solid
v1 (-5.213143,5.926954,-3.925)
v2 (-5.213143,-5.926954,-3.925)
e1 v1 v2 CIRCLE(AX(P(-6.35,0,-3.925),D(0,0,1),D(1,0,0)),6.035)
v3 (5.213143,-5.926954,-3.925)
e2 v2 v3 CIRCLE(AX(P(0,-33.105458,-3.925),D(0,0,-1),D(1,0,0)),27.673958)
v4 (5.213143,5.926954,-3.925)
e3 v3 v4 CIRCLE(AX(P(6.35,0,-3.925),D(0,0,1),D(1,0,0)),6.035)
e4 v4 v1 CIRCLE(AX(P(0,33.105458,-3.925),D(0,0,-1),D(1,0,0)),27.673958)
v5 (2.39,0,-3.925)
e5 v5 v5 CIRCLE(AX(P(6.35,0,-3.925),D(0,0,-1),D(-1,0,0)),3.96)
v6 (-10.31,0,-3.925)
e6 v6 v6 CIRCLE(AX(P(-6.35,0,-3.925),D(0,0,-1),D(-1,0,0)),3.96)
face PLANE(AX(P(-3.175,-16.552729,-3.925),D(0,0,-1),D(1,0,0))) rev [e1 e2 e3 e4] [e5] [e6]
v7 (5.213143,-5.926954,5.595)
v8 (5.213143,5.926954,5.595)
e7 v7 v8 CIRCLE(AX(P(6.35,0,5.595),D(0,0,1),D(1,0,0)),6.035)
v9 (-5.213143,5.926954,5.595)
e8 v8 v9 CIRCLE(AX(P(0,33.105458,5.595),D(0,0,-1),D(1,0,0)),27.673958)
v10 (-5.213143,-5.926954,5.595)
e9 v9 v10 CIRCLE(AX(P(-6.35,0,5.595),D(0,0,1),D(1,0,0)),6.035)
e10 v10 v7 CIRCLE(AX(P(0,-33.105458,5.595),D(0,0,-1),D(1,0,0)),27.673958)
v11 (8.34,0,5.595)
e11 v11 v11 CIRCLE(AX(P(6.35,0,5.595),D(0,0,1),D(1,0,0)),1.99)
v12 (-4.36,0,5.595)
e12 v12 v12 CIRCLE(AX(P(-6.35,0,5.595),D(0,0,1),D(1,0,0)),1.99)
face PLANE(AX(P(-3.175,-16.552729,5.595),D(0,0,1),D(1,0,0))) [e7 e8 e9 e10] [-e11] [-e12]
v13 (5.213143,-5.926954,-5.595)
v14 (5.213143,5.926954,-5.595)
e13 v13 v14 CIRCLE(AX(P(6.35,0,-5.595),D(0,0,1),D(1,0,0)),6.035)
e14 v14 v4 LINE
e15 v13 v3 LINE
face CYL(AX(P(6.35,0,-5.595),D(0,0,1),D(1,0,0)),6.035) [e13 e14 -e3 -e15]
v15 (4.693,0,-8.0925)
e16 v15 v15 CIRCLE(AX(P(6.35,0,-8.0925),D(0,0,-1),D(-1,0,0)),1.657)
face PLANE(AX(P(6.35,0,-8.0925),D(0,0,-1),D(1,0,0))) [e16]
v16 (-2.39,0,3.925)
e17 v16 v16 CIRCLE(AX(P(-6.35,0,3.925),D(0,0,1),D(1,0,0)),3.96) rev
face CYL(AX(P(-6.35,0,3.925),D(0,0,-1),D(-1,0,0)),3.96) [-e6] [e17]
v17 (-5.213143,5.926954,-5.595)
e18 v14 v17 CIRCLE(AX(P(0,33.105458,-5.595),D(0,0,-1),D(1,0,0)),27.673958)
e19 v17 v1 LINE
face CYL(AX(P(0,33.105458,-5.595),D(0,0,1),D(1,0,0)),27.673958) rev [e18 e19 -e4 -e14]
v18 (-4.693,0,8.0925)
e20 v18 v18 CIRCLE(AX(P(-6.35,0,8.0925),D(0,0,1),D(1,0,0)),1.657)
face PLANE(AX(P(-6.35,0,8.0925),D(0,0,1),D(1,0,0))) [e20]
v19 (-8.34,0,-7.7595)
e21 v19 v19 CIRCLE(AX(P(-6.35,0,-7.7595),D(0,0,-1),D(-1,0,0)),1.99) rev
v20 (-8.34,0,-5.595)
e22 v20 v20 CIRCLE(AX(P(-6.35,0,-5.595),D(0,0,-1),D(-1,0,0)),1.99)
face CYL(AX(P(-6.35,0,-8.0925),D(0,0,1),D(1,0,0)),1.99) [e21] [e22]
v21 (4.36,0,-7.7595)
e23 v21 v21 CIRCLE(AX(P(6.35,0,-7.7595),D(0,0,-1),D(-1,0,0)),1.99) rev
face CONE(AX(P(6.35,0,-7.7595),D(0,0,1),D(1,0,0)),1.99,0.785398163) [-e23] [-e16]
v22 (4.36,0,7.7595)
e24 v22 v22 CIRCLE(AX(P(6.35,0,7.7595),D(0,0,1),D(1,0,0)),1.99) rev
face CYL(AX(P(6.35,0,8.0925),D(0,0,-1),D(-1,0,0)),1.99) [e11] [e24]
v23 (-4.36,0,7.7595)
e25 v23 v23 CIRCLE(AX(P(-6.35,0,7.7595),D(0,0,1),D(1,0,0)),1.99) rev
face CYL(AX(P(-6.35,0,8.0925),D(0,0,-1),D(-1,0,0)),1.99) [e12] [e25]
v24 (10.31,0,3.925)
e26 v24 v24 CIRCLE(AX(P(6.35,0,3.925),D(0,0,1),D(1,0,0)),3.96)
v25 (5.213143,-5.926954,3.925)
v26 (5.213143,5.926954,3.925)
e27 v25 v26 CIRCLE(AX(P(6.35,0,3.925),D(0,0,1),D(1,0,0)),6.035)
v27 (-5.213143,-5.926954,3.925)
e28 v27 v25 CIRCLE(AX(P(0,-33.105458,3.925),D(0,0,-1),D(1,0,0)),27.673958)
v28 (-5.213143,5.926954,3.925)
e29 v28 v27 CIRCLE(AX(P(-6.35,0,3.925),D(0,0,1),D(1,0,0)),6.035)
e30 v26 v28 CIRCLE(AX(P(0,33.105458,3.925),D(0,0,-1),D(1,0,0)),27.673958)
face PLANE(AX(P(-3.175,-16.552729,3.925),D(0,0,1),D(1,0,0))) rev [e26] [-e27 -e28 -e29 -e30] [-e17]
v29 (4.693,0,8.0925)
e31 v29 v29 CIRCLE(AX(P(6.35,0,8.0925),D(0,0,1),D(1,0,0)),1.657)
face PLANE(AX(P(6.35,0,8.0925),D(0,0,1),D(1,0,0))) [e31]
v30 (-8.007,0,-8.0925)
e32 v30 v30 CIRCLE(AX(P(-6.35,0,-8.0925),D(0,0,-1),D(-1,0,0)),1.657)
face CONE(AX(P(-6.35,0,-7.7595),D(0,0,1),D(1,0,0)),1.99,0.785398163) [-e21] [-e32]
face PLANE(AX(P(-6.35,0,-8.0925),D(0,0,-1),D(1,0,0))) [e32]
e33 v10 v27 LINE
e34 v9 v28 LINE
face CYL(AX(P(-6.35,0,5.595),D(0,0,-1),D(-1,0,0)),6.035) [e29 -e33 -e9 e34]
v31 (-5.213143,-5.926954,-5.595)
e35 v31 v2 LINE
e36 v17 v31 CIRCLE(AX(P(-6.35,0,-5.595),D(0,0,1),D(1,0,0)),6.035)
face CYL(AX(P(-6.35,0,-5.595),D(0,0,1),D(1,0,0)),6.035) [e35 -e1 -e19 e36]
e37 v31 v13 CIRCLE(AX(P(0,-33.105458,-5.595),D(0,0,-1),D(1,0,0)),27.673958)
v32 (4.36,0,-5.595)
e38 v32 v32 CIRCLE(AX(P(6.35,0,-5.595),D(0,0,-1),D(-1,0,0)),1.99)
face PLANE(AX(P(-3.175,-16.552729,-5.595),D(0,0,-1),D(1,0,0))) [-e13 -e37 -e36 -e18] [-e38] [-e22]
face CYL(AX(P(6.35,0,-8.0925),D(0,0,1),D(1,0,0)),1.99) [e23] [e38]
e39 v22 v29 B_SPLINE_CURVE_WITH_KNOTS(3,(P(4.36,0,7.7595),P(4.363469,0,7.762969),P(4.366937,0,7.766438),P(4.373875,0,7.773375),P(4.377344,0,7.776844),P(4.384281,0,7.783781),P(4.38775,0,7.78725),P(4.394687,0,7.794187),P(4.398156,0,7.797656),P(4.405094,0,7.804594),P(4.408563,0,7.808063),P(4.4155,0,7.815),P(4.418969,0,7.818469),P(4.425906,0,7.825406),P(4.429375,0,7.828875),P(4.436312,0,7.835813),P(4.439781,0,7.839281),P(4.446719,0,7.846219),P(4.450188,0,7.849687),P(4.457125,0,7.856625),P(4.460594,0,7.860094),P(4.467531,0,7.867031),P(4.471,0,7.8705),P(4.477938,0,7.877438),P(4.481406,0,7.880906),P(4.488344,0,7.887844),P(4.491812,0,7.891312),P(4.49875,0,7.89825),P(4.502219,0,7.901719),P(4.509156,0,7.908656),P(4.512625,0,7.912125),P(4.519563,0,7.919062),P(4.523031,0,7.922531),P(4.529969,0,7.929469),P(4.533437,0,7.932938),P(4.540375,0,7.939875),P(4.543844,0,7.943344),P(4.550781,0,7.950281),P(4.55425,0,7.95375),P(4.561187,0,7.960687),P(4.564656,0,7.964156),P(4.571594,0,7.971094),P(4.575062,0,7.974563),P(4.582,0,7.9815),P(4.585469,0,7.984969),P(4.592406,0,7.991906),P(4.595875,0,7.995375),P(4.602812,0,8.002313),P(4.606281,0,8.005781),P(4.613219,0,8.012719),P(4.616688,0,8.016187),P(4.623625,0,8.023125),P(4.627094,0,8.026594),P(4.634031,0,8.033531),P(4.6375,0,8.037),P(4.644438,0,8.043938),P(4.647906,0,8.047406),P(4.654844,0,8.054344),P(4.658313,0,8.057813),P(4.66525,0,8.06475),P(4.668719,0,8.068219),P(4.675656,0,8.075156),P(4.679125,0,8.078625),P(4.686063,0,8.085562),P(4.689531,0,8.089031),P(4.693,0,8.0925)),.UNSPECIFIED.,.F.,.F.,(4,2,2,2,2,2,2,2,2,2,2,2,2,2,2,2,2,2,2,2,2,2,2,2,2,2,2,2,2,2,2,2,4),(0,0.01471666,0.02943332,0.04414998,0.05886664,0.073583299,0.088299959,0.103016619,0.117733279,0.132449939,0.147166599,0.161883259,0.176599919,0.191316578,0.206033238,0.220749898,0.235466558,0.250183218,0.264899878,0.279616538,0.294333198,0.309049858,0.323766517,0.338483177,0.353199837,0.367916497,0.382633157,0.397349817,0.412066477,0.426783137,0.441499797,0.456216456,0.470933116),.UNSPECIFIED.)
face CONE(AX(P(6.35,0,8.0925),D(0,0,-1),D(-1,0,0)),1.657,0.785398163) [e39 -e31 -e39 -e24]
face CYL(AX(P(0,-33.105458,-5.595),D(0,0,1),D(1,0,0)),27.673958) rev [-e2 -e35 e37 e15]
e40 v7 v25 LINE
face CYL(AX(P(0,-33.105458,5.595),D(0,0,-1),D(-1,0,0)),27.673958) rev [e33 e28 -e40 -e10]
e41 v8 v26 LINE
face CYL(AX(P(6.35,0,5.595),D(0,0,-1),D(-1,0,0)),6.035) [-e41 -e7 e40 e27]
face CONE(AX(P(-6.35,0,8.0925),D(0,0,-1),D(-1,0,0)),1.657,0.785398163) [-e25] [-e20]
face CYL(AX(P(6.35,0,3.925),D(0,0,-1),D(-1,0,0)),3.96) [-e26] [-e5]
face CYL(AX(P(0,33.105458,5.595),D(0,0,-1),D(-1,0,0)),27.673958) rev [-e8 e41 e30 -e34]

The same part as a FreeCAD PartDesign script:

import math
import FreeCAD as App
import Part
import Sketcher
Q = App.Units.Quantity


def edges_at(feature, points):
    """Names of the edges that pass closest to the given points."""
    edges = feature.Shape.Edges
    near = lambda p: min(range(len(edges)), key=lambda i: edges[i].distToShape(Part.Vertex(*p))[0])
    return sorted({f"Edge{near(p) + 1}" for p in points})

doc = App.newDocument("Part")
body = doc.addObject("PartDesign::Body", "Body")

# Sketch on XY plane
sketch1 = body.newObject("Sketcher::SketchObject", "Sketch")
sketch1.AttachmentSupport = (doc.getObject("XY_Plane"), [""])
sketch1.MapMode = "FlatFace"
sketch1.addGeometry(Part.Circle(App.Vector(6.3, 0, 0), App.Vector(0, 0, 1), 4), False)
sketch1.addConstraint([
    Sketcher.Constraint("PointOnObject", 0, 3, -1),
    Sketcher.Constraint("Diameter", 0, Q("7.92 mm")),
    Sketcher.Constraint("DistanceX", -1, 1, 0, 3, Q("6.35 mm")),
])
pad1 = body.newObject("PartDesign::Pad", "Pad")
pad1.Profile = sketch1
pad1.Length = 7.85
pad1.Midplane = True
body2 = doc.addObject("PartDesign::Body", "Body001")

# Sketch on XY plane
sketch2 = body2.newObject("Sketcher::SketchObject", "Sketch001")
sketch2.AttachmentSupport = (doc.getObject("XY_Plane001"), [""])
sketch2.MapMode = "FlatFace"
sketch2.addGeometry(Part.Circle(App.Vector(-6.3, 0, 0), App.Vector(0, 0, 1), 4), False)
sketch2.addConstraint([
    Sketcher.Constraint("PointOnObject", 0, 3, -1),
    Sketcher.Constraint("Diameter", 0, Q("7.92 mm")),
    Sketcher.Constraint("DistanceX", 0, 3, -1, 1, Q("6.35 mm")),
])
pad2 = body2.newObject("PartDesign::Pad", "Pad001")
pad2.Profile = sketch2
pad2.Length = 7.85
pad2.Midplane = True
body.AllowCompound = True
doc.recompute()

boolean = body.newObject("PartDesign::Boolean", "Boolean")
boolean.Type = "Fuse"
boolean.addObjects([body2])

# Sketch on XY plane
sketch3 = body.newObject("Sketcher::SketchObject", "Sketch002")
sketch3.AttachmentSupport = (doc.getObject("XY_Plane"), [""])
sketch3.MapMode = "FlatFace"
sketch3.AttachmentOffset = App.Placement(App.Vector(0, 0, 3.925), App.Rotation())
sketch3.addGeometry([
    Part.ArcOfCircle(Part.Circle(App.Vector(-6, 0, 0), App.Vector(0, 0, 1), 6), math.radians(79), math.radians(281)),
    Part.ArcOfCircle(Part.Circle(App.Vector(0, -33, 0), App.Vector(0, 0, 1), 28), math.radians(79), math.radians(101)),
    Part.ArcOfCircle(Part.Circle(App.Vector(6, 0, 0), App.Vector(0, 0, 1), 6), math.radians(-101), math.radians(101)),
    Part.ArcOfCircle(Part.Circle(App.Vector(0, 33, 0), App.Vector(0, 0, 1), 28), math.radians(-101), math.radians(-79)),
], False)
sketch3.addConstraint([
    Sketcher.Constraint("Tangent", 0, 2, 1, 2),
    Sketcher.Constraint("Tangent", 1, 1, 2, 1),
    Sketcher.Constraint("Tangent", 2, 2, 3, 2),
    Sketcher.Constraint("Tangent", 3, 1, 0, 1),
    Sketcher.Constraint("Equal", 0, 2),
    Sketcher.Constraint("Equal", 1, 3),
    Sketcher.Constraint("Symmetric", 0, 3, 2, 3, -1, 1),
    Sketcher.Constraint("PointOnObject", 0, 3, -1),
    Sketcher.Constraint("Radius", 0, Q("6.035 mm")),
    Sketcher.Constraint("DistanceX", 0, 3, 2, 3, Q("12.7 mm")),
    Sketcher.Constraint("Radius", 1, Q("27.673958 mm")),
])
pad3 = body.newObject("PartDesign::Pad", "Pad002")
pad3.Profile = sketch3
pad3.Length = 1.67

# Sketch on XY plane
sketch4 = body.newObject("Sketcher::SketchObject", "Sketch003")
sketch4.AttachmentSupport = (doc.getObject("XY_Plane"), [""])
sketch4.MapMode = "FlatFace"
sketch4.AttachmentOffset = App.Placement(App.Vector(0, 0, 5.595), App.Rotation())
sketch4.addGeometry([
    Part.Circle(App.Vector(6.3, 0, 0), App.Vector(0, 0, 1), 2),
    Part.Circle(App.Vector(-6.3, 0, 0), App.Vector(0, 0, 1), 2),
], False)
sketch4.addConstraint([
    Sketcher.Constraint("Equal", 0, 1),
    Sketcher.Constraint("Symmetric", 0, 3, 1, 3, -1, 1),
    Sketcher.Constraint("PointOnObject", 0, 3, -1),
    Sketcher.Constraint("Diameter", 0, Q("3.98 mm")),
    Sketcher.Constraint("DistanceX", 1, 3, 0, 3, Q("12.7 mm")),
])
pad4 = body.newObject("PartDesign::Pad", "Pad003")
pad4.Profile = sketch4
pad4.Length = 2.4975
doc.recompute()

chamfer = body.newObject("PartDesign::Chamfer", "Chamfer")
chamfer.Base = (pad4, edges_at(pad4, [(4.36, 0, 8.092), (-8.34, 0, 8.092)]))
chamfer.Size = 0.333
doc.recompute()

mirrored = body.newObject("PartDesign::Mirrored", "Mirrored")
mirrored.Originals = [pad3, pad4]
mirrored.MirrorPlane = (doc.getObject("XY_Plane"), [""])
body.Tip = mirrored
doc.recompute()

chamfer2 = body.newObject("PartDesign::Chamfer", "Chamfer001")
chamfer2.Base = (mirrored, edges_at(mirrored, [(4.36, 0, -8.092), (-8.34, 0, -8.092)]))
chamfer2.Size = 0.333

doc.recompute()
